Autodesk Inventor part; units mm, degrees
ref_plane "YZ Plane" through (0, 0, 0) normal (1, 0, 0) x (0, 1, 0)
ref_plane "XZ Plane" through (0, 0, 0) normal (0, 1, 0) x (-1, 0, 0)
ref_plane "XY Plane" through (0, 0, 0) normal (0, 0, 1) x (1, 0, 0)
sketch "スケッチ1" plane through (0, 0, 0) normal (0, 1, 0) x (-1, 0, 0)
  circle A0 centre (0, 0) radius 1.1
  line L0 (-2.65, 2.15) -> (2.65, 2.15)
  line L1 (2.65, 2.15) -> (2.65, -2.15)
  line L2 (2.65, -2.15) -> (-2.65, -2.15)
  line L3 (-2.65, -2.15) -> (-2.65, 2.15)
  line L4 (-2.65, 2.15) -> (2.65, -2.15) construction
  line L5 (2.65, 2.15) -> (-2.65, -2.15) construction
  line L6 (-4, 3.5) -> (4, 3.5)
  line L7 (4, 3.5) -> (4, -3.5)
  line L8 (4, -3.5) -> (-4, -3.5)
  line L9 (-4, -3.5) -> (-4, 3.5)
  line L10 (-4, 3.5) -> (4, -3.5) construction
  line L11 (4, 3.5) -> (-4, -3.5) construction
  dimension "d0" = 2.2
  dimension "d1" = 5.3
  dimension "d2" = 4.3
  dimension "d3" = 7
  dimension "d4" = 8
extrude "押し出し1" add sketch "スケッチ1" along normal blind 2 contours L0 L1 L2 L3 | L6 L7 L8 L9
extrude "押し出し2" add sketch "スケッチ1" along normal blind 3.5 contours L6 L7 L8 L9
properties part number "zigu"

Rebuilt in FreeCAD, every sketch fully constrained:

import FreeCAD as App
import Part
import Sketcher

V = App.Vector
Q = App.Units.Quantity

doc = App.newDocument("Part")
params = doc.addObject("Spreadsheet::Sheet", "Params")
for row, (alias, value) in enumerate([
    ("sketch1_diameter", "2.2 mm"),
    ("sketch1_width", "8 mm"),
    ("sketch1_height", "7 mm"),
    ("pad1_length", "2 mm"),
    ("sketch2_width", "8 mm"),
    ("sketch2_height", "7 mm"),
    ("sketch2_width2", "5.3 mm"),
    ("sketch2_height2", "4.3 mm"),
    ("pad2_length", "3.5 mm"),
], start=1):
    params.set(f"A{row}", alias)
    params.set(f"B{row}", "=" + value)
    params.setAlias(f"B{row}", alias)

body = doc.addObject("PartDesign::Body", "Body")

sketch1 = body.newObject("Sketcher::SketchObject", "Sketch")
sketch1.AttachmentSupport = (doc.getObject("XZ_Plane"), [""])
sketch1.MapMode = "FlatFace"
sketch1.addGeometry(Part.LineSegment(V(-4, 3.5, 0), V(4, 3.5, 0)), False)
sketch1.addGeometry(Part.LineSegment(V(4, 3.5, 0), V(4, -3.5, 0)), False)
sketch1.addGeometry(Part.LineSegment(V(4, -3.5, 0), V(-4, -3.5, 0)), False)
sketch1.addGeometry(Part.LineSegment(V(-4, -3.5, 0), V(-4, 3.5, 0)), False)
sketch1.addGeometry(Part.Circle(V(0, 0, 0), V(0, 0, 1), 1.1), False)
sketch1.addConstraint(Sketcher.Constraint("Coincident", 0, 2, 1, 1))
sketch1.addConstraint(Sketcher.Constraint("Coincident", 1, 2, 2, 1))
sketch1.addConstraint(Sketcher.Constraint("Coincident", 2, 2, 3, 1))
sketch1.addConstraint(Sketcher.Constraint("Coincident", 3, 2, 0, 1))
sketch1.addConstraint(Sketcher.Constraint("Horizontal", 0))
sketch1.addConstraint(Sketcher.Constraint("Vertical", 1))
sketch1.addConstraint(Sketcher.Constraint("Horizontal", 2))
sketch1.addConstraint(Sketcher.Constraint("Vertical", 3))
sketch1.addConstraint(Sketcher.Constraint("Coincident", 4, 3, -1, 1))
sketch1.addConstraint(Sketcher.Constraint("Symmetric", 0, 2, 2, 2, -1, 1))
sketch1.addConstraint(Sketcher.Constraint("Diameter", 4, Q("2.2 mm")))
sketch1.addConstraint(Sketcher.Constraint("DistanceX", 0, 1, 0, 2, Q("8 mm")))
sketch1.addConstraint(Sketcher.Constraint("DistanceY", 1, 2, 1, 1, Q("7 mm")))
sketch1.setExpression("Constraints[10]", "Params.sketch1_diameter")
sketch1.setExpression("Constraints[11]", "Params.sketch1_width")
sketch1.setExpression("Constraints[12]", "Params.sketch1_height")
pad1 = body.newObject("PartDesign::Pad", "Pad")
pad1.Profile = sketch1
pad1.setExpression("Length", "Params.pad1_length")
pad1.Reversed = True

sketch2 = body.newObject("Sketcher::SketchObject", "Sketch001")
sketch2.AttachmentSupport = (doc.getObject("XZ_Plane"), [""])
sketch2.MapMode = "FlatFace"
sketch2.addGeometry(Part.LineSegment(V(-4, 3.5, 0), V(4, 3.5, 0)), False)
sketch2.addGeometry(Part.LineSegment(V(4, 3.5, 0), V(4, -3.5, 0)), False)
sketch2.addGeometry(Part.LineSegment(V(4, -3.5, 0), V(-4, -3.5, 0)), False)
sketch2.addGeometry(Part.LineSegment(V(-4, -3.5, 0), V(-4, 3.5, 0)), False)
sketch2.addGeometry(Part.LineSegment(V(2.6, -2.1, 0), V(2.6, 2.1, 0)), False)
sketch2.addGeometry(Part.LineSegment(V(2.6, 2.1, 0), V(-2.6, 2.1, 0)), False)
sketch2.addGeometry(Part.LineSegment(V(-2.6, 2.1, 0), V(-2.6, -2.1, 0)), False)
sketch2.addGeometry(Part.LineSegment(V(-2.6, -2.1, 0), V(2.6, -2.1, 0)), False)
sketch2.addConstraint(Sketcher.Constraint("Coincident", 0, 2, 1, 1))
sketch2.addConstraint(Sketcher.Constraint("Coincident", 1, 2, 2, 1))
sketch2.addConstraint(Sketcher.Constraint("Coincident", 2, 2, 3, 1))
sketch2.addConstraint(Sketcher.Constraint("Coincident", 3, 2, 0, 1))
sketch2.addConstraint(Sketcher.Constraint("Coincident", 4, 2, 5, 1))
sketch2.addConstraint(Sketcher.Constraint("Coincident", 5, 2, 6, 1))
sketch2.addConstraint(Sketcher.Constraint("Coincident", 6, 2, 7, 1))
sketch2.addConstraint(Sketcher.Constraint("Coincident", 7, 2, 4, 1))
sketch2.addConstraint(Sketcher.Constraint("Horizontal", 0))
sketch2.addConstraint(Sketcher.Constraint("Vertical", 1))
sketch2.addConstraint(Sketcher.Constraint("Horizontal", 2))
sketch2.addConstraint(Sketcher.Constraint("Vertical", 3))
sketch2.addConstraint(Sketcher.Constraint("Vertical", 4))
sketch2.addConstraint(Sketcher.Constraint("Horizontal", 5))
sketch2.addConstraint(Sketcher.Constraint("Vertical", 6))
sketch2.addConstraint(Sketcher.Constraint("Horizontal", 7))
sketch2.addConstraint(Sketcher.Constraint("Symmetric", 0, 2, 2, 2, -1, 1))
sketch2.addConstraint(Sketcher.Constraint("Symmetric", 4, 2, 6, 2, -1, 1))
sketch2.addConstraint(Sketcher.Constraint("DistanceX", 0, 1, 0, 2, Q("8 mm")))
sketch2.addConstraint(Sketcher.Constraint("DistanceY", 1, 2, 1, 1, Q("7 mm")))
sketch2.addConstraint(Sketcher.Constraint("DistanceX", 5, 2, 5, 1, Q("5.3 mm")))
sketch2.addConstraint(Sketcher.Constraint("DistanceY", 4, 1, 4, 2, Q("4.3 mm")))
sketch2.setExpression("Constraints[18]", "Params.sketch2_width")
sketch2.setExpression("Constraints[19]", "Params.sketch2_height")
sketch2.setExpression("Constraints[20]", "Params.sketch2_width2")
sketch2.setExpression("Constraints[21]", "Params.sketch2_height2")
pad2 = body.newObject("PartDesign::Pad", "Pad001")
pad2.Profile = sketch2
pad2.setExpression("Length", "Params.pad2_length")
pad2.Reversed = True

doc.recompute()
